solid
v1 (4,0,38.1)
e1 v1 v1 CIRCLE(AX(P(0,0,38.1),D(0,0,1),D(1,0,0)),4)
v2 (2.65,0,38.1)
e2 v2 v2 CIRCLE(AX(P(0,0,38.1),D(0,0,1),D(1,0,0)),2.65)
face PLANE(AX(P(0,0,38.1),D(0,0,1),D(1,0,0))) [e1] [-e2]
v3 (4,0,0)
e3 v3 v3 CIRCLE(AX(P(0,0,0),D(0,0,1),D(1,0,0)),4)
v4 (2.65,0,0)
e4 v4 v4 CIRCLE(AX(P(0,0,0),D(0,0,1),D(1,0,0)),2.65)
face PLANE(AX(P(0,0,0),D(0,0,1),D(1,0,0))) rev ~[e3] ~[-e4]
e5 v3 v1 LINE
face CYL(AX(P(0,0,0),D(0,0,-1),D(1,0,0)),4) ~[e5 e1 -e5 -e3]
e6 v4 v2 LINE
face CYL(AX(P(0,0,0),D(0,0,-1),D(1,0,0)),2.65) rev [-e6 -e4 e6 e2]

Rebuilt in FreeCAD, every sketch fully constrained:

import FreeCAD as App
import Part
import Sketcher
Q = App.Units.Quantity

doc = App.newDocument("Part")
body = doc.addObject("PartDesign::Body", "Body")

sketch1 = doc.addObject("Sketcher::SketchObject", "Sketch")
body.addObject(sketch1)
sketch1.AttachmentSupport = (doc.XY_Plane, [""])
sketch1.MapMode = "FlatFace"
sketch1.addGeometry([
    Part.Circle(App.Vector(0, 0, 0), App.Vector(0, 0, 1), 4),
    Part.Circle(App.Vector(0, 0, 0), App.Vector(0, 0, 1), 2.6),
], False)
sketch1.addConstraint([
    Sketcher.Constraint("Coincident", 0, 3, -1, 1),
    Sketcher.Constraint("Coincident", 1, 3, -1, 1),
    Sketcher.Constraint("Diameter", 0, Q("8 mm")),
    Sketcher.Constraint("Diameter", 1, Q("5.3 mm")),
])
pad1 = doc.addObject("PartDesign::Pad", "Pad")
body.addObject(pad1)
pad1.Profile = sketch1
pad1.Length = 38.1

doc.recompute()
